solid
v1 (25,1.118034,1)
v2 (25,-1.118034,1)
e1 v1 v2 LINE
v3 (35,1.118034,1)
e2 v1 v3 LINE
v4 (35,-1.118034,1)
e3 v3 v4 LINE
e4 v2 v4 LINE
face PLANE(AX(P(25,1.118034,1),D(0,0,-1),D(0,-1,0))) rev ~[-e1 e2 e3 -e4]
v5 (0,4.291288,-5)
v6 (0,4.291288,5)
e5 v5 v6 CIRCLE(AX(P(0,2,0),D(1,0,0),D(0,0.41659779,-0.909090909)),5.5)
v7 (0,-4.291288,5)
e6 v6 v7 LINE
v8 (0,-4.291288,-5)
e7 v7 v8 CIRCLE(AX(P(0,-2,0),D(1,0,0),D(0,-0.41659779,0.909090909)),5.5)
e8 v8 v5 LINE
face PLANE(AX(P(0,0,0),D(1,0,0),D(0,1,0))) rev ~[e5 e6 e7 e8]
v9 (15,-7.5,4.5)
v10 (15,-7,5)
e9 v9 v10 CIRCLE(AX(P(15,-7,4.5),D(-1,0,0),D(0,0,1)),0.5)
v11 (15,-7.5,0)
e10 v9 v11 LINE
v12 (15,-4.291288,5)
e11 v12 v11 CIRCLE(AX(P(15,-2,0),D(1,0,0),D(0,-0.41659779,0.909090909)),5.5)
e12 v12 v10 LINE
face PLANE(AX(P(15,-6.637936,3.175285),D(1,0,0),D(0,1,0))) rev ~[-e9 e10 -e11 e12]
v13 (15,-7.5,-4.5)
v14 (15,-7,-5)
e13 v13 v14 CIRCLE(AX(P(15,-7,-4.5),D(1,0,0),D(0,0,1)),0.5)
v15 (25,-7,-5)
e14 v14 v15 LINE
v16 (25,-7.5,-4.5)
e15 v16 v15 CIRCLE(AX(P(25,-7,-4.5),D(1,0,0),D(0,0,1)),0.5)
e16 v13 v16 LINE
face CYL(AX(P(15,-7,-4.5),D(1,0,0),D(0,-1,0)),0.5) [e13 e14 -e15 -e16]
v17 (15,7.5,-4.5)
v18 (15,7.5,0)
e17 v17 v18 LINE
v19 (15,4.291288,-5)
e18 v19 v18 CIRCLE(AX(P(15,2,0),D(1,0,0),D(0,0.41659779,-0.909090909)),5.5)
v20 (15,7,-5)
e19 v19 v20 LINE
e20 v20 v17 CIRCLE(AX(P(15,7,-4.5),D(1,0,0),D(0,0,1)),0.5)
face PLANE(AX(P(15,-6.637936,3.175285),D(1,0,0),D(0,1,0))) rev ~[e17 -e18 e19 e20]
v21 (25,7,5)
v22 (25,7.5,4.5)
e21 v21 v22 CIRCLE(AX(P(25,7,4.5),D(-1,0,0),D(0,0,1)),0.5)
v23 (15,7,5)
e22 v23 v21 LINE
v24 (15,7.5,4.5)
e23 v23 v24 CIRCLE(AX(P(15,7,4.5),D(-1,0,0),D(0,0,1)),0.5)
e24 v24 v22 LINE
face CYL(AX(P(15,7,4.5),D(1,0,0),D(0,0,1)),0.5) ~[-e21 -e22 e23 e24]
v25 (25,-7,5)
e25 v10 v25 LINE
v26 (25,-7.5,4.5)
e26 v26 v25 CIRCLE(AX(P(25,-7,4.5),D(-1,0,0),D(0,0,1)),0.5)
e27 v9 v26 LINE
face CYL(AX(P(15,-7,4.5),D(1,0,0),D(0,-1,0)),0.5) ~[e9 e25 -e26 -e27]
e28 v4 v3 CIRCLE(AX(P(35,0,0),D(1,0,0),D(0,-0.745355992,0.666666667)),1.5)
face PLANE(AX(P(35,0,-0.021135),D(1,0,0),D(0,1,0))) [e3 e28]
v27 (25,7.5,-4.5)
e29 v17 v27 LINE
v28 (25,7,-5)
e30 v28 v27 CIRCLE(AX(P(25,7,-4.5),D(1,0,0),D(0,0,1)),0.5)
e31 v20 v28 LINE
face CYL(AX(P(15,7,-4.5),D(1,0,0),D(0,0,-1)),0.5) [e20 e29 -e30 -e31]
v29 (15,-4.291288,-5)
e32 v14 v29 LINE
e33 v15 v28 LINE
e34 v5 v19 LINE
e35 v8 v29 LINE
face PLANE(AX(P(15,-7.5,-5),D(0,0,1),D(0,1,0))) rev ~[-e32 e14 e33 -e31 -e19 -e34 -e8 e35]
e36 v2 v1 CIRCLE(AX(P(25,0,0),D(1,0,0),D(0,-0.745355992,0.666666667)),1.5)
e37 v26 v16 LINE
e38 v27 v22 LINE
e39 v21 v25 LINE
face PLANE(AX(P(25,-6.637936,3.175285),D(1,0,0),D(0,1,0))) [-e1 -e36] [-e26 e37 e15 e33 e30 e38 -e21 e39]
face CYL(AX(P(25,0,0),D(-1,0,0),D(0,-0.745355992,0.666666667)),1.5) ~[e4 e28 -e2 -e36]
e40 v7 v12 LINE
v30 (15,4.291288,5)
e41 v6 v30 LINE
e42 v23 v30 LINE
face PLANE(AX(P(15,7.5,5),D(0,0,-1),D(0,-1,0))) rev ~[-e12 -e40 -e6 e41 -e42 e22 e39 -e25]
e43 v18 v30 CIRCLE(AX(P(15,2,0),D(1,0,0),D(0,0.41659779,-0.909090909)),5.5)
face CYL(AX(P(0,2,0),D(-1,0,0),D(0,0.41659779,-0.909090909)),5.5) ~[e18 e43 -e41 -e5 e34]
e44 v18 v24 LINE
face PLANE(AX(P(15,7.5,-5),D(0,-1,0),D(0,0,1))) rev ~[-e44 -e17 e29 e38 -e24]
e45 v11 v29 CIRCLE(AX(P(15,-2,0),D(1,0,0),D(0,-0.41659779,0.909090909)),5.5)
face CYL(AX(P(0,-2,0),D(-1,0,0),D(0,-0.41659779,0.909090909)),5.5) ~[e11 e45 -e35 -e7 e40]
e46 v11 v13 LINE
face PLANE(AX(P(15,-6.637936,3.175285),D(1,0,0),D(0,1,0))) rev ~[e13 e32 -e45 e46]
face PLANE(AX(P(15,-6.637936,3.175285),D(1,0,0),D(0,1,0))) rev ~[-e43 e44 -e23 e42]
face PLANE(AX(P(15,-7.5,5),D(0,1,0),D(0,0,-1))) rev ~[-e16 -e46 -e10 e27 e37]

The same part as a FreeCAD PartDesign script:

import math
import FreeCAD as App
import Part
import Sketcher
from FreeCAD import Vector


def edges_at(feature, points):
    """Names of the edges that pass closest to the given points."""
    edges = feature.Shape.Edges
    near = lambda p: min(range(len(edges)), key=lambda i: edges[i].distToShape(Part.Vertex(*p))[0])
    return sorted({f"Edge{near(p) + 1}" for p in points})


def add_polygon(sketch, points):
    """Adds a closed chain of lines whose ends are joined by coincident constraints."""
    first, n = sketch.GeometryCount, len(points)
    for a, b in zip(points, points[1:] + points[:1]):
        sketch.addGeometry(Part.LineSegment(App.Vector(*a, 0), App.Vector(*b, 0)), False)
    for i in range(n):
        sketch.addConstraint(Sketcher.Constraint("Coincident", first + i, 2, first + (i + 1) % n, 1))

doc = App.newDocument("Part")
body = doc.addObject("PartDesign::Body", "Body")

# Sketch on YZ plane
sketch1 = body.newObject("Sketcher::SketchObject", "Sketch")
sketch1.AttachmentSupport = (doc.getObject("YZ_Plane"), [""])
sketch1.MapMode = "FlatFace"
sketch1.addGeometry([
    Part.LineSegment(Vector(4.291288, 5, 0), Vector(-4.291288, 5, 0)),
    Part.ArcOfCircle(Part.Circle(Vector(-2, 0, 0), Vector(0, 0, 1), 5.5), math.radians(114.619977), math.radians(245.380023)),
    Part.LineSegment(Vector(-4.291288, -5, 0), Vector(4.291288, -5, 0)),
    Part.ArcOfCircle(Part.Circle(Vector(2, 0, 0), Vector(0, 0, 1), 5.5), math.radians(-65.380023), math.radians(65.380023)),
], False)
sketch1.addConstraint([
    Sketcher.Constraint("Coincident", 0, 2, 1, 1),
    Sketcher.Constraint("Coincident", 1, 2, 2, 1),
    Sketcher.Constraint("Coincident", 2, 2, 3, 1),
    Sketcher.Constraint("Coincident", 3, 2, 0, 1),
    Sketcher.Constraint("Horizontal", 0),
    Sketcher.Constraint("Horizontal", 2),
    Sketcher.Constraint("Equal", 1, 3),
    Sketcher.Constraint("Symmetric", 1, 3, 3, 3, -1, 1),
    Sketcher.Constraint("Symmetric", 0, 2, 1, 2, -1),
    Sketcher.Constraint("Radius", 1, 5.5),
    Sketcher.Constraint("DistanceX", 1, 3, -1, 1, 2.0),
    Sketcher.Constraint("DistanceY", -1, 1, 0, 2, 5.0),
])
pad1 = body.newObject("PartDesign::Pad", "Pad")
pad1.Profile = sketch1
pad1.Length = 15

# Sketch on YZ plane
sketch2 = body.newObject("Sketcher::SketchObject", "Sketch001")
sketch2.AttachmentSupport = (doc.getObject("YZ_Plane"), [""])
sketch2.MapMode = "FlatFace"
sketch2.AttachmentOffset = App.Placement(Vector(0, 0, 15), App.Rotation())
add_polygon(sketch2, [(-7.5, 5), (-7.5, -5), (7.5, -5), (7.5, 5)])  # lines 0-3
sketch2.addConstraint([
    Sketcher.Constraint("Vertical", 0),
    Sketcher.Constraint("Horizontal", 1),
    Sketcher.Constraint("Vertical", 2),
    Sketcher.Constraint("Horizontal", 3),
    Sketcher.Constraint("Symmetric", 0, 2, 2, 2, -1, 1),
    Sketcher.Constraint("DistanceX", 1, 1, 1, 2, 15.0),
    Sketcher.Constraint("DistanceY", 0, 2, 0, 1, 10.0),
])
pad2 = body.newObject("PartDesign::Pad", "Pad001")
pad2.Profile = sketch2
pad2.Length = 10
doc.recompute()

fillet = body.newObject("PartDesign::Fillet", "Fillet")
fillet.Base = (pad2, edges_at(pad2, [
    (20, -7.5, 5),
    (20, 7.5, 5),
    (20, -7.5, -5),
    (20, 7.5, -5),
]))
fillet.Radius = 0.5

# Sketch on YZ plane
sketch3 = body.newObject("Sketcher::SketchObject", "Sketch002")
sketch3.AttachmentSupport = (doc.getObject("YZ_Plane"), [""])
sketch3.MapMode = "FlatFace"
sketch3.AttachmentOffset = App.Placement(Vector(0, 0, 25), App.Rotation())
sketch3.addGeometry([
    Part.LineSegment(Vector(1.118034, 1, 0), Vector(-1.118034, 1, 0)),
    Part.ArcOfCircle(Part.Circle(Vector(0, 0, 0), Vector(0, 0, 1), 1.5), math.radians(138.189685), math.radians(401.810315)),
], False)
sketch3.addConstraint([
    Sketcher.Constraint("Coincident", 0, 1, 1, 2),
    Sketcher.Constraint("Coincident", 1, 1, 0, 2),
    Sketcher.Constraint("Horizontal", 0),
    Sketcher.Constraint("Coincident", 1, 3, -1, 1),
    Sketcher.Constraint("Radius", 1, 1.5),
    Sketcher.Constraint("DistanceY", -1, 1, 0, 1, 1.0),
])
pad3 = body.newObject("PartDesign::Pad", "Pad002")
pad3.Profile = sketch3
pad3.Length = 10

doc.recompute()
